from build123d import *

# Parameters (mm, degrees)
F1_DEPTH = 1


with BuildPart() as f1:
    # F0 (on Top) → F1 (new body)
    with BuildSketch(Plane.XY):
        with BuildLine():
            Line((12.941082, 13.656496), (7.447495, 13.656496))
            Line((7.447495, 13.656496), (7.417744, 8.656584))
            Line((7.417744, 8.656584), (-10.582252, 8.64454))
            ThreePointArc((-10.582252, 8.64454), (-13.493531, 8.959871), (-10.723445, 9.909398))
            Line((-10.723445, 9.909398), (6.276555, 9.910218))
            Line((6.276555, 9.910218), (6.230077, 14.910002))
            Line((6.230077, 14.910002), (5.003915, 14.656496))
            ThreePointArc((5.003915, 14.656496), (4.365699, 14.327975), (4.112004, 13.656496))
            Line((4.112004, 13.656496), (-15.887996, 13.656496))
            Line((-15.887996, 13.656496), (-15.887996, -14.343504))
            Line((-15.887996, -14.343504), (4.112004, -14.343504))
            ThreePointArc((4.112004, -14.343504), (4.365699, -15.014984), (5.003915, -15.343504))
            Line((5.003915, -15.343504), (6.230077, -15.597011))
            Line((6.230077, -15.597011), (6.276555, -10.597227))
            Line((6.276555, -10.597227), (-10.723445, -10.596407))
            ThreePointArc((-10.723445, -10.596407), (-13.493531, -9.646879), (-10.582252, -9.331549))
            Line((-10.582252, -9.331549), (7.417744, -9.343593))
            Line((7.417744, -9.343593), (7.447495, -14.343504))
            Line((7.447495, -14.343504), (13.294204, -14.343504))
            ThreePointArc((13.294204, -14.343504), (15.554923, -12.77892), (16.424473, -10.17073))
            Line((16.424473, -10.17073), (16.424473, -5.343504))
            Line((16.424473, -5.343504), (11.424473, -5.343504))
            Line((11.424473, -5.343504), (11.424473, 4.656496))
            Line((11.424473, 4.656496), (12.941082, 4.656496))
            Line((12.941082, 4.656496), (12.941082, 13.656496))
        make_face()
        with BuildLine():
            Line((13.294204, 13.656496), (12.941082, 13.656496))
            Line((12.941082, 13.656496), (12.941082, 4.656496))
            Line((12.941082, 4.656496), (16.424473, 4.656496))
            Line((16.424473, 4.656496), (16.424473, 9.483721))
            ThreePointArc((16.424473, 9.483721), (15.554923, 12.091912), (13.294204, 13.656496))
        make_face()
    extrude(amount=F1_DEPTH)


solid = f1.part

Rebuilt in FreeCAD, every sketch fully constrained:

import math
import FreeCAD as App
import Part
import Sketcher
from FreeCAD import Vector
Q = App.Units.Quantity

doc = App.newDocument("Part")
body = doc.addObject("PartDesign::Body", "Body")

# Sketch on XY plane
sketch1 = doc.addObject("Sketcher::SketchObject", "Sketch")
body.addObject(sketch1)
sketch1.AttachmentSupport = (doc.XY_Plane, [""])
sketch1.MapMode = "FlatFace"
sketch1.addGeometry(Part.LineSegment(Vector(7.447495, 13.656496, 0), Vector(7.417744, 8.656584, 0)), False)
sketch1.addGeometry(Part.LineSegment(Vector(7.417744, 8.656584, 0), Vector(-10.582252, 8.64454, 0)), False)
sketch1.addGeometry(Part.ArcOfCircle(Part.Circle(Vector(-12.00279, 9.126278, 0), Vector(0, 0, 1), 1.5), math.radians(31.471862), math.radians(341.266976)), False)
sketch1.addGeometry(Part.LineSegment(Vector(-10.723445, 9.909398, 0), Vector(6.276555, 9.910218, 0)), False)
sketch1.addGeometry(Part.LineSegment(Vector(6.276555, 9.910218, 0), Vector(6.230077, 14.910002, 0)), False)
sketch1.addGeometry(Part.LineSegment(Vector(6.230077, 14.910002, 0), Vector(5.003915, 14.656496, 0)), False)
sketch1.addGeometry(Part.ArcOfCircle(Part.Circle(Vector(5.111989, 13.662351, 0), Vector(0, 0, 1), 1.000002), math.radians(96.204304), math.radians(180.335453)), False)
sketch1.addGeometry(Part.LineSegment(Vector(4.112004, 13.656496, 0), Vector(-15.887996, 13.656496, 0)), False)
sketch1.addGeometry(Part.LineSegment(Vector(-15.887996, 13.656496, 0), Vector(-15.887996, -14.343504, 0)), False)
sketch1.addGeometry(Part.LineSegment(Vector(-15.887996, -14.343504, 0), Vector(4.112004, -14.343504, 0)), False)
sketch1.addGeometry(Part.ArcOfCircle(Part.Circle(Vector(5.111987, -14.34936, 0), Vector(0, 0, 1), 1.000001), math.radians(179.664448), math.radians(263.795796)), False)
sketch1.addGeometry(Part.LineSegment(Vector(5.003915, -15.343504, 0), Vector(6.230077, -15.597011, 0)), False)
sketch1.addGeometry(Part.LineSegment(Vector(6.230077, -15.597011, 0), Vector(6.276555, -10.597227, 0)), False)
sketch1.addGeometry(Part.LineSegment(Vector(6.276555, -10.597227, 0), Vector(-10.723445, -10.596407, 0)), False)
sketch1.addGeometry(Part.ArcOfCircle(Part.Circle(Vector(-12.00279, -9.813287, 0), Vector(0, 0, 1), 1.5), math.radians(18.733023), math.radians(328.528139)), False)
sketch1.addGeometry(Part.LineSegment(Vector(-10.582252, -9.331549, 0), Vector(7.417744, -9.343593, 0)), False)
sketch1.addGeometry(Part.LineSegment(Vector(7.417744, -9.343593, 0), Vector(7.447495, -14.343504, 0)), False)
sketch1.addGeometry(Part.LineSegment(Vector(7.447495, -14.343504, 0), Vector(13.294204, -14.343504, 0)), False)
sketch1.addGeometry(Part.ArcOfCircle(Part.Circle(Vector(12.0781, -10.170729, 0), Vector(0, 0, 1), 4.346373), math.radians(-73.75188), math.radians(-0.000015)), False)
sketch1.addGeometry(Part.LineSegment(Vector(16.424473, -10.17073, 0), Vector(16.424473, -5.343504, 0)), False)
sketch1.addGeometry(Part.LineSegment(Vector(16.424473, -5.343504, 0), Vector(11.424473, -5.343504, 0)), False)
sketch1.addGeometry(Part.LineSegment(Vector(11.424473, -5.343504, 0), Vector(11.424473, 4.656496, 0)), False)
sketch1.addGeometry(Part.LineSegment(Vector(11.424473, 4.656496, 0), Vector(16.424473, 4.656496, 0)), False)
sketch1.addGeometry(Part.LineSegment(Vector(16.424473, 4.656496, 0), Vector(16.424473, 9.483721, 0)), False)
sketch1.addGeometry(Part.ArcOfCircle(Part.Circle(Vector(12.0781, 9.483721, 0), Vector(0, 0, 1), 4.346373), math.radians(0.000001), math.radians(73.75188)), False)
sketch1.addGeometry(Part.LineSegment(Vector(13.294204, 13.656496, 0), Vector(7.447495, 13.656496, 0)), False)
sketch1.addConstraint(Sketcher.Constraint("Coincident", 0, 2, 1, 1))
sketch1.addConstraint(Sketcher.Constraint("Coincident", 1, 2, 2, 2))
sketch1.addConstraint(Sketcher.Constraint("Coincident", 2, 1, 3, 1))
sketch1.addConstraint(Sketcher.Constraint("Coincident", 3, 2, 4, 1))
sketch1.addConstraint(Sketcher.Constraint("Coincident", 4, 2, 5, 1))
sketch1.addConstraint(Sketcher.Constraint("Coincident", 5, 2, 6, 1))
sketch1.addConstraint(Sketcher.Constraint("Coincident", 6, 2, 7, 1))
sketch1.addConstraint(Sketcher.Constraint("Coincident", 7, 2, 8, 1))
sketch1.addConstraint(Sketcher.Constraint("Coincident", 8, 2, 9, 1))
sketch1.addConstraint(Sketcher.Constraint("Coincident", 9, 2, 10, 1))
sketch1.addConstraint(Sketcher.Constraint("Coincident", 10, 2, 11, 1))
sketch1.addConstraint(Sketcher.Constraint("Coincident", 11, 2, 12, 1))
sketch1.addConstraint(Sketcher.Constraint("Coincident", 12, 2, 13, 1))
sketch1.addConstraint(Sketcher.Constraint("Coincident", 13, 2, 14, 2))
sketch1.addConstraint(Sketcher.Constraint("Coincident", 14, 1, 15, 1))
sketch1.addConstraint(Sketcher.Constraint("Coincident", 15, 2, 16, 1))
sketch1.addConstraint(Sketcher.Constraint("Coincident", 16, 2, 17, 1))
sketch1.addConstraint(Sketcher.Constraint("Coincident", 17, 2, 18, 1))
sketch1.addConstraint(Sketcher.Constraint("Coincident", 18, 2, 19, 1))
sketch1.addConstraint(Sketcher.Constraint("Coincident", 19, 2, 20, 1))
sketch1.addConstraint(Sketcher.Constraint("Coincident", 20, 2, 21, 1))
sketch1.addConstraint(Sketcher.Constraint("Coincident", 21, 2, 22, 1))
sketch1.addConstraint(Sketcher.Constraint("Coincident", 22, 2, 23, 1))
sketch1.addConstraint(Sketcher.Constraint("Coincident", 23, 2, 24, 1))
sketch1.addConstraint(Sketcher.Constraint("Coincident", 24, 2, 25, 1))
sketch1.addConstraint(Sketcher.Constraint("Coincident", 25, 2, 0, 1))
sketch1.addConstraint(Sketcher.Constraint("Horizontal", 7))
sketch1.addConstraint(Sketcher.Constraint("Vertical", 8))
sketch1.addConstraint(Sketcher.Constraint("Horizontal", 9))
sketch1.addConstraint(Sketcher.Constraint("Horizontal", 17))
sketch1.addConstraint(Sketcher.Constraint("Vertical", 19))
sketch1.addConstraint(Sketcher.Constraint("Horizontal", 20))
sketch1.addConstraint(Sketcher.Constraint("Vertical", 21))
sketch1.addConstraint(Sketcher.Constraint("Horizontal", 22))
sketch1.addConstraint(Sketcher.Constraint("Vertical", 23))
sketch1.addConstraint(Sketcher.Constraint("Horizontal", 25))
sketch1.addConstraint(Sketcher.Constraint("Radius", 10, Q("1.000001 mm")))
sketch1.addConstraint(Sketcher.Constraint("Radius", 2, Q("1.5 mm")))
sketch1.addConstraint(Sketcher.Constraint("Radius", 14, Q("1.5 mm")))
sketch1.addConstraint(Sketcher.Constraint("DistanceX", 7, 2, 7, 1, Q("20 mm")))
sketch1.addConstraint(Sketcher.Constraint("DistanceX", 9, 1, 9, 2, Q("20 mm")))
sketch1.addConstraint(Sketcher.Constraint("DistanceX", 20, 2, 20, 1, Q("5 mm")))
sketch1.addConstraint(Sketcher.Constraint("DistanceX", 22, 1, 22, 2, Q("5 mm")))
sketch1.addConstraint(Sketcher.Constraint("DistanceY", 8, 2, 8, 1, Q("28 mm")))
sketch1.addConstraint(Sketcher.Constraint("DistanceY", 21, 1, 21, 2, Q("10 mm")))
sketch1.addConstraint(Sketcher.Constraint("Distance", 0, Q("5.000001 mm")))
sketch1.addConstraint(Sketcher.Constraint("Distance", 1, Q("18 mm")))
sketch1.addConstraint(Sketcher.Constraint("Distance", 3, Q("17 mm")))
sketch1.addConstraint(Sketcher.Constraint("Distance", 4, Q("5 mm")))
sketch1.addConstraint(Sketcher.Constraint("Distance", 12, Q("5 mm")))
sketch1.addConstraint(Sketcher.Constraint("Distance", 13, Q("17 mm")))
sketch1.addConstraint(Sketcher.Constraint("Distance", 15, Q("18 mm")))
sketch1.addConstraint(Sketcher.Constraint("Distance", 16, Q("5 mm")))
sketch1.addConstraint(Sketcher.Constraint("DistanceY", 6, 2, 5, 2, Q("1 mm")))
sketch1.addConstraint(Sketcher.Constraint("DistanceY", 10, 2, 9, 2, Q("1 mm")))
sketch1.addConstraint(Sketcher.Constraint("DistanceY", 10, 2, 16, 2, Q("1 mm")))
sketch1.addConstraint(Sketcher.Constraint("DistanceY", 17, 2, 19, 2, Q("9 mm")))
sketch1.addConstraint(Sketcher.Constraint("DistanceY", 25, 2, 5, 2, Q("1 mm")))
sketch1.addConstraint(Sketcher.Constraint("Radius", 6, Q("1.000002 mm")))
sketch1.addConstraint(Sketcher.Constraint("Radius", 18, Q("4.346373 mm")))
sketch1.addConstraint(Sketcher.Constraint("Radius", 24, Q("4.346373 mm")))
sketch1.addConstraint(Sketcher.Constraint("DistanceX", 17, 1, 17, 2, Q("5.846709 mm")))
sketch1.addConstraint(Sketcher.Constraint("DistanceX", 25, 2, 25, 1, Q("5.846709 mm")))
sketch1.addConstraint(Sketcher.Constraint("DistanceX", -1, 1, 18, 3, Q("12.0781 mm")))
sketch1.addConstraint(Sketcher.Constraint("DistanceY", 2, 1, 7, 2, Q("3.747098 mm")))
sketch1.addConstraint(Sketcher.Constraint("DistanceY", 12, 2, 18, 3, Q("0.426498 mm")))
sketch1.addConstraint(Sketcher.Constraint("DistanceY", 19, 1, 19, 2, Q("4.827226 mm")))
sketch1.addConstraint(Sketcher.Constraint("DistanceY", 23, 1, 23, 2, Q("4.827225 mm")))
sketch1.addConstraint(Sketcher.Constraint("DistanceX", 2, 3, -1, 1, Q("12.00279 mm")))
sketch1.addConstraint(Sketcher.Constraint("DistanceY", -1, 1, 2, 3, Q("9.126278 mm")))
sketch1.addConstraint(Sketcher.Constraint("DistanceX", -1, 1, 6, 3, Q("5.111989 mm")))
sketch1.addConstraint(Sketcher.Constraint("DistanceY", -1, 1, 6, 3, Q("13.662351 mm")))
sketch1.addConstraint(Sketcher.Constraint("DistanceY", 10, 3, -1, 1, Q("14.34936 mm")))
sketch1.addConstraint(Sketcher.Constraint("DistanceX", 14, 3, -1, 1, Q("12.00279 mm")))
sketch1.addConstraint(Sketcher.Constraint("DistanceY", 18, 3, -1, 1, Q("10.170729 mm")))
sketch1.addConstraint(Sketcher.Constraint("DistanceY", -1, 1, 24, 3, Q("9.483721 mm")))
sketch1.addConstraint(Sketcher.Constraint("DistanceY", -1, 1, 1, 2, Q("8.64454 mm")))
sketch1.addConstraint(Sketcher.Constraint("DistanceY", 11, 2, -1, 1, Q("15.597011 mm")))
sketch1.addConstraint(Sketcher.Constraint("DistanceY", 14, 1, -1, 1, Q("9.331549 mm")))
sketch1.addConstraint(Sketcher.Constraint("DistanceY", 18, 2, -1, 1, Q("10.17073 mm")))
sketch1.addConstraint(Sketcher.Constraint("DistanceY", 14, 3, 6, 3, Q("23.475638 mm")))
sketch1.addConstraint(Sketcher.Constraint("DistanceY", 1, 2, 3, 2, Q("1.265678 mm")))
sketch1.addConstraint(Sketcher.Constraint("DistanceY", 6, 3, 4, 2, Q("1.247651 mm")))
sketch1.addConstraint(Sketcher.Constraint("DistanceX", 10, 2, 11, 2, Q("1.226162 mm")))
pad1 = doc.addObject("PartDesign::Pad", "Pad")
body.addObject(pad1)
pad1.Profile = sketch1
pad1.Length = 1

doc.recompute()
